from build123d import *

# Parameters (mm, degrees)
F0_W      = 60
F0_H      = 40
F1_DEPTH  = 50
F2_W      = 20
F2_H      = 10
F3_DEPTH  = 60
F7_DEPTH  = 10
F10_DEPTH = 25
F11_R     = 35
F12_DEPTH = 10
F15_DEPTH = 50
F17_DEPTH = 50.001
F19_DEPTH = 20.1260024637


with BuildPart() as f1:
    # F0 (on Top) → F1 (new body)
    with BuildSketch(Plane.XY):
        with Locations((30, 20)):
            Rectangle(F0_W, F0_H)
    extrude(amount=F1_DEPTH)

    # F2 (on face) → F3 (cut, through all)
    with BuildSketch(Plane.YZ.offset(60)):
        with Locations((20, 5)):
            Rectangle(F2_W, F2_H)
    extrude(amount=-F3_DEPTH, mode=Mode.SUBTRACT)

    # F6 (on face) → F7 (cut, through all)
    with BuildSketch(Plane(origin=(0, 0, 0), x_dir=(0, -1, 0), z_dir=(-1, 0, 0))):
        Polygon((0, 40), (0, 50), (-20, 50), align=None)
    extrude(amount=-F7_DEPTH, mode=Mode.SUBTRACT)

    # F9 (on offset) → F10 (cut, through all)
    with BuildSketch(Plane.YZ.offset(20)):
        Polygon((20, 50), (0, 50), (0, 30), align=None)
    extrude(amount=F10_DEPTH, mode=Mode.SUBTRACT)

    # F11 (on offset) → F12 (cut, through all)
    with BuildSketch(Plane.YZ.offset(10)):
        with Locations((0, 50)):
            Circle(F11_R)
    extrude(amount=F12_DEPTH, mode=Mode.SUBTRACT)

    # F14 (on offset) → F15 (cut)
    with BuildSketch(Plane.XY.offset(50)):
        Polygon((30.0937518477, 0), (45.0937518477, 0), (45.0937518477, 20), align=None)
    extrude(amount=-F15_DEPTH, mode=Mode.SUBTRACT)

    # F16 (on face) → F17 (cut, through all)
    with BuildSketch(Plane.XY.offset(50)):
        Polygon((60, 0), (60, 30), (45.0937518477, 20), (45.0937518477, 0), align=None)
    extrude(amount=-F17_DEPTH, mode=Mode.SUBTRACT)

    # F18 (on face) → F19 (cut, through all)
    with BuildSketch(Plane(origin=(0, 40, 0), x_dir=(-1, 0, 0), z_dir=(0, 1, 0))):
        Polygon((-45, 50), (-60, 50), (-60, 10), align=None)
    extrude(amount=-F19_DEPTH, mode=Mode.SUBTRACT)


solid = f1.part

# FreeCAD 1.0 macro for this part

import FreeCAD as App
import Part
import Sketcher
Q = App.Units.Quantity


def add_polygon(sketch, points):
    """Adds a closed chain of lines whose ends are joined by coincident constraints."""
    first, n = sketch.GeometryCount, len(points)
    for a, b in zip(points, points[1:] + points[:1]):
        sketch.addGeometry(Part.LineSegment(App.Vector(*a, 0), App.Vector(*b, 0)), False)
    for i in range(n):
        sketch.addConstraint(Sketcher.Constraint("Coincident", first + i, 2, first + (i + 1) % n, 1))

doc = App.newDocument("Part")
body = doc.addObject("PartDesign::Body", "Body")

# Sketch on XY plane
sketch1 = body.newObject("Sketcher::SketchObject", "Sketch")
sketch1.AttachmentSupport = (doc.getObject("XY_Plane"), [""])
sketch1.MapMode = "FlatFace"
add_polygon(sketch1, [(0, 40), (0, 0), (60, 0), (60, 40)])  # lines 0-3
sketch1.addConstraint([
    Sketcher.Constraint("Vertical", 0),
    Sketcher.Constraint("Horizontal", 1),
    Sketcher.Constraint("Vertical", 2),
    Sketcher.Constraint("Horizontal", 3),
    Sketcher.Constraint("Coincident", 0, 2, -1, 1),
    Sketcher.Constraint("DistanceX", 1, 1, 1, 2, Q("60 mm")),
    Sketcher.Constraint("DistanceY", 0, 2, 0, 1, Q("40 mm")),
])
pad1 = body.newObject("PartDesign::Pad", "Pad")
pad1.Profile = sketch1
pad1.Length = 50

# Sketch on YZ plane
sketch2 = body.newObject("Sketcher::SketchObject", "Sketch001")
sketch2.AttachmentSupport = (doc.getObject("YZ_Plane"), [""])
sketch2.MapMode = "FlatFace"
sketch2.AttachmentOffset = App.Placement(App.Vector(0, 0, 60), App.Rotation())
add_polygon(sketch2, [(10, 10), (10, 0), (30, 0), (30, 10)])  # lines 0-3
sketch2.addConstraint([
    Sketcher.Constraint("Vertical", 0),
    Sketcher.Constraint("Horizontal", 1),
    Sketcher.Constraint("Vertical", 2),
    Sketcher.Constraint("Horizontal", 3),
    Sketcher.Constraint("PointOnObject", 0, 2, -1),
    Sketcher.Constraint("DistanceX", 1, 1, 1, 2, Q("20 mm")),
    Sketcher.Constraint("DistanceY", 0, 2, 0, 1, Q("10 mm")),
    Sketcher.Constraint("DistanceX", -1, 1, 0, 2, Q("10 mm")),
])
pocket1 = body.newObject("PartDesign::Pocket", "Pocket")
pocket1.Profile = sketch2
pocket1.Type = "ThroughAll"

# Sketch on YZ plane
sketch3 = body.newObject("Sketcher::SketchObject", "Sketch002")
sketch3.AttachmentSupport = (doc.getObject("YZ_Plane"), [""])
sketch3.MapMode = "FlatFace"
add_polygon(sketch3, [(0, 40), (0, 50), (20, 50)])  # lines 0-2
sketch3.addConstraint([
    Sketcher.Constraint("Vertical", 0),
    Sketcher.Constraint("Horizontal", 1),
    Sketcher.Constraint("PointOnObject", 0, 2, -2),
    Sketcher.Constraint("DistanceX", 1, 1, 1, 2, Q("20 mm")),
    Sketcher.Constraint("DistanceY", 0, 1, 0, 2, Q("10 mm")),
    Sketcher.Constraint("DistanceY", -1, 1, 0, 2, Q("50 mm")),
])
pocket2 = body.newObject("PartDesign::Pocket", "Pocket001")
pocket2.Profile = sketch3
pocket2.Length = 10
pocket2.Reversed = True

# Sketch on YZ plane
sketch4 = body.newObject("Sketcher::SketchObject", "Sketch003")
sketch4.AttachmentSupport = (doc.getObject("YZ_Plane"), [""])
sketch4.MapMode = "FlatFace"
sketch4.AttachmentOffset = App.Placement(App.Vector(0, 0, 20), App.Rotation())
add_polygon(sketch4, [(20, 50), (0, 50), (0, 30)])  # lines 0-2
sketch4.addConstraint([
    Sketcher.Constraint("Horizontal", 0),
    Sketcher.Constraint("Vertical", 1),
    Sketcher.Constraint("PointOnObject", 0, 2, -2),
    Sketcher.Constraint("Equal", 0, 1),
    Sketcher.Constraint("DistanceX", 0, 2, 0, 1, Q("20 mm")),
    Sketcher.Constraint("DistanceY", -1, 1, 0, 2, Q("50 mm")),
])
pocket3 = body.newObject("PartDesign::Pocket", "Pocket002")
pocket3.Profile = sketch4
pocket3.Length = 25
pocket3.Reversed = True

# Sketch on YZ plane
sketch5 = body.newObject("Sketcher::SketchObject", "Sketch004")
sketch5.AttachmentSupport = (doc.getObject("YZ_Plane"), [""])
sketch5.MapMode = "FlatFace"
sketch5.AttachmentOffset = App.Placement(App.Vector(0, 0, 10), App.Rotation())
sketch5.addGeometry(Part.Circle(App.Vector(0, 50, 0), App.Vector(0, 0, 1), 35), False)
sketch5.addConstraint([
    Sketcher.Constraint("PointOnObject", 0, 3, -2),
    Sketcher.Constraint("Diameter", 0, Q("70 mm")),
    Sketcher.Constraint("DistanceY", -1, 1, 0, 3, Q("50 mm")),
])
pocket4 = body.newObject("PartDesign::Pocket", "Pocket003")
pocket4.Profile = sketch5
pocket4.Length = 10
pocket4.Reversed = True

# Sketch on XY plane
sketch6 = body.newObject("Sketcher::SketchObject", "Sketch005")
sketch6.AttachmentSupport = (doc.getObject("XY_Plane"), [""])
sketch6.MapMode = "FlatFace"
sketch6.AttachmentOffset = App.Placement(App.Vector(0, 0, 50), App.Rotation())
add_polygon(sketch6, [(30, 0), (45, 0), (45, 20)])  # lines 0-2
sketch6.addConstraint([
    Sketcher.Constraint("Horizontal", 0),
    Sketcher.Constraint("Vertical", 1),
    Sketcher.Constraint("PointOnObject", 0, 2, -1),
    Sketcher.Constraint("DistanceX", 0, 1, 0, 2, Q("15 mm")),
    Sketcher.Constraint("DistanceY", 1, 1, 1, 2, Q("20 mm")),
    Sketcher.Constraint("DistanceX", -1, 1, 0, 2, Q("45.093752 mm")),
])
pocket5 = body.newObject("PartDesign::Pocket", "Pocket004")
pocket5.Profile = sketch6
pocket5.Length = 50

# Sketch on XY plane
sketch7 = body.newObject("Sketcher::SketchObject", "Sketch006")
sketch7.AttachmentSupport = (doc.getObject("XY_Plane"), [""])
sketch7.MapMode = "FlatFace"
sketch7.AttachmentOffset = App.Placement(App.Vector(0, 0, 50), App.Rotation())
add_polygon(sketch7, [(60, 0), (60, 30), (45, 20), (45, 0)])  # lines 0-3
sketch7.addConstraint([
    Sketcher.Constraint("Vertical", 0),
    Sketcher.Constraint("Vertical", 2),
    Sketcher.Constraint("Horizontal", 3),
    Sketcher.Constraint("PointOnObject", 2, 2, -1),
    Sketcher.Constraint("DistanceY", 0, 1, 0, 2, Q("30 mm")),
    Sketcher.Constraint("DistanceY", 2, 2, 2, 1, Q("20 mm")),
    Sketcher.Constraint("DistanceX", -1, 1, 0, 2, Q("60 mm")),
    Sketcher.Constraint("DistanceX", 3, 1, 3, 2, Q("14.906248 mm")),
])
pocket6 = body.newObject("PartDesign::Pocket", "Pocket005")
pocket6.Profile = sketch7
pocket6.Type = "ThroughAll"

# Sketch on XZ plane
sketch8 = body.newObject("Sketcher::SketchObject", "Sketch007")
sketch8.AttachmentSupport = (doc.getObject("XZ_Plane"), [""])
sketch8.MapMode = "FlatFace"
sketch8.AttachmentOffset = App.Placement(App.Vector(0, 0, -40), App.Rotation())
add_polygon(sketch8, [(45, 50), (60, 50), (60, 10)])  # lines 0-2
sketch8.addConstraint([
    Sketcher.Constraint("Horizontal", 0),
    Sketcher.Constraint("Vertical", 1),
    Sketcher.Constraint("DistanceX", 0, 1, 0, 2, Q("15 mm")),
    Sketcher.Constraint("DistanceY", 1, 2, 1, 1, Q("40 mm")),
    Sketcher.Constraint("DistanceX", -1, 1, 0, 2, Q("60 mm")),
    Sketcher.Constraint("DistanceY", -1, 1, 0, 2, Q("50 mm")),
])
pocket7 = body.newObject("PartDesign::Pocket", "Pocket006")
pocket7.Profile = sketch8
pocket7.Type = "ThroughAll"
pocket7.Reversed = True

doc.recompute()
